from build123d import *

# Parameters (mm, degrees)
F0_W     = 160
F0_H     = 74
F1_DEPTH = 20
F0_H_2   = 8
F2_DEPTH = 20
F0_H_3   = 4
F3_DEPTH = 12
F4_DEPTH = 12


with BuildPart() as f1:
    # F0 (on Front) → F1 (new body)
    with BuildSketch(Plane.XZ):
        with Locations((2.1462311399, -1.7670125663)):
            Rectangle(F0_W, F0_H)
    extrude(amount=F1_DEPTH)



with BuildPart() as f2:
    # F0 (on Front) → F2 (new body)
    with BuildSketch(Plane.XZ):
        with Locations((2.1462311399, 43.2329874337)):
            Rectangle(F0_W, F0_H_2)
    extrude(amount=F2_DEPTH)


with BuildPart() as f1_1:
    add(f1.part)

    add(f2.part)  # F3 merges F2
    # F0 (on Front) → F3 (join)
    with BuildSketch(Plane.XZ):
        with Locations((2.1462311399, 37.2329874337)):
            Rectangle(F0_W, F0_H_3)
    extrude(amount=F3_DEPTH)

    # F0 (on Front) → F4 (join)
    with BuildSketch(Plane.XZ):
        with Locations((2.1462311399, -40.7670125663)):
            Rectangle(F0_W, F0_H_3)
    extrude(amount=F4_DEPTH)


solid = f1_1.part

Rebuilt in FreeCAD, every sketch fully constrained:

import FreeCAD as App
import Part
import Sketcher

V = App.Vector

doc = App.newDocument("Part")
body = doc.addObject("PartDesign::Body", "Body")

sketch1 = doc.addObject("Sketcher::SketchObject", "Sketch")
body.addObject(sketch1)
sketch1.AttachmentSupport = (doc.XZ_Plane, [""])
sketch1.MapMode = "FlatFace"
sketch1.addGeometry(Part.LineSegment(V(-78, 35, 0), V(-78, -39, 0)), False)
sketch1.addGeometry(Part.LineSegment(V(-78, -39, 0), V(82, -39, 0)), False)
sketch1.addGeometry(Part.LineSegment(V(82, -39, 0), V(82, 35, 0)), False)
sketch1.addGeometry(Part.LineSegment(V(82, 35, 0), V(-78, 35, 0)), False)
sketch1.addConstraint(Sketcher.Constraint("Coincident", 0, 2, 1, 1))
sketch1.addConstraint(Sketcher.Constraint("Coincident", 1, 2, 2, 1))
sketch1.addConstraint(Sketcher.Constraint("Coincident", 2, 2, 3, 1))
sketch1.addConstraint(Sketcher.Constraint("Coincident", 3, 2, 0, 1))
sketch1.addConstraint(Sketcher.Constraint("Vertical", 0))
sketch1.addConstraint(Sketcher.Constraint("Horizontal", 1))
sketch1.addConstraint(Sketcher.Constraint("Vertical", 2))
sketch1.addConstraint(Sketcher.Constraint("Horizontal", 3))
sketch1.addConstraint(Sketcher.Constraint("DistanceX", 1, 1, 1, 2, 160.0))
sketch1.addConstraint(Sketcher.Constraint("DistanceY", 0, 2, 0, 1, 74.0))
sketch1.addConstraint(Sketcher.Constraint("DistanceX", 0, 2, -1, 1, 77.853769))
sketch1.addConstraint(Sketcher.Constraint("DistanceY", 0, 2, -1, 1, 38.767013))
pad1 = doc.addObject("PartDesign::Pad", "Pad")
body.addObject(pad1)
pad1.Profile = sketch1
pad1.Length = 20
body2 = doc.addObject("PartDesign::Body", "Body001")

sketch2 = doc.addObject("Sketcher::SketchObject", "Sketch001")
body2.addObject(sketch2)
sketch2.AttachmentSupport = (doc.getObject("XZ_Plane001"), [""])
sketch2.MapMode = "FlatFace"
sketch2.addGeometry(Part.LineSegment(V(-78, 47, 0), V(-78, 39, 0)), False)
sketch2.addGeometry(Part.LineSegment(V(-78, 39, 0), V(82, 39, 0)), False)
sketch2.addGeometry(Part.LineSegment(V(82, 39, 0), V(82, 47, 0)), False)
sketch2.addGeometry(Part.LineSegment(V(82, 47, 0), V(-78, 47, 0)), False)
sketch2.addConstraint(Sketcher.Constraint("Coincident", 0, 2, 1, 1))
sketch2.addConstraint(Sketcher.Constraint("Coincident", 1, 2, 2, 1))
sketch2.addConstraint(Sketcher.Constraint("Coincident", 2, 2, 3, 1))
sketch2.addConstraint(Sketcher.Constraint("Coincident", 3, 2, 0, 1))
sketch2.addConstraint(Sketcher.Constraint("Vertical", 0))
sketch2.addConstraint(Sketcher.Constraint("Horizontal", 1))
sketch2.addConstraint(Sketcher.Constraint("Vertical", 2))
sketch2.addConstraint(Sketcher.Constraint("Horizontal", 3))
sketch2.addConstraint(Sketcher.Constraint("DistanceX", 1, 1, 1, 2, 160.0))
sketch2.addConstraint(Sketcher.Constraint("DistanceY", 0, 2, 0, 1, 8.0))
sketch2.addConstraint(Sketcher.Constraint("DistanceX", 0, 2, -1, 1, 77.853769))
sketch2.addConstraint(Sketcher.Constraint("DistanceY", -1, 1, 0, 2, 39.232987))
pad2 = doc.addObject("PartDesign::Pad", "Pad001")
body2.addObject(pad2)
pad2.Profile = sketch2
pad2.Length = 20
body.AllowCompound = True
doc.recompute()

boolean = doc.addObject("PartDesign::Boolean", "Boolean")
body.addObject(boolean)
boolean.Type = "Fuse"
boolean.addObjects([body2])

sketch3 = doc.addObject("Sketcher::SketchObject", "Sketch002")
body.addObject(sketch3)
sketch3.AttachmentSupport = (doc.XZ_Plane, [""])
sketch3.MapMode = "FlatFace"
sketch3.addGeometry(Part.LineSegment(V(-77.9, 39.2, 0), V(-77.9, 35.2, 0)), False)
sketch3.addGeometry(Part.LineSegment(V(-77.9, 35.2, 0), V(82.1, 35.2, 0)), False)
sketch3.addGeometry(Part.LineSegment(V(82.1, 35.2, 0), V(82.1, 39.2, 0)), False)
sketch3.addGeometry(Part.LineSegment(V(82.1, 39.2, 0), V(-77.9, 39.2, 0)), False)
sketch3.addConstraint(Sketcher.Constraint("Coincident", 0, 2, 1, 1))
sketch3.addConstraint(Sketcher.Constraint("Coincident", 1, 2, 2, 1))
sketch3.addConstraint(Sketcher.Constraint("Coincident", 2, 2, 3, 1))
sketch3.addConstraint(Sketcher.Constraint("Coincident", 3, 2, 0, 1))
sketch3.addConstraint(Sketcher.Constraint("Vertical", 0))
sketch3.addConstraint(Sketcher.Constraint("Horizontal", 1))
sketch3.addConstraint(Sketcher.Constraint("Vertical", 2))
sketch3.addConstraint(Sketcher.Constraint("Horizontal", 3))
sketch3.addConstraint(Sketcher.Constraint("DistanceX", 1, 1, 1, 2, 160.0))
sketch3.addConstraint(Sketcher.Constraint("DistanceY", 0, 2, 0, 1, 4.0))
sketch3.addConstraint(Sketcher.Constraint("DistanceX", 0, 2, -1, 1, 77.853769))
sketch3.addConstraint(Sketcher.Constraint("DistanceY", -1, 1, 0, 2, 35.232987))
pad3 = doc.addObject("PartDesign::Pad", "Pad002")
body.addObject(pad3)
pad3.Profile = sketch3
pad3.Length = 12

sketch4 = doc.addObject("Sketcher::SketchObject", "Sketch003")
body.addObject(sketch4)
sketch4.AttachmentSupport = (doc.XZ_Plane, [""])
sketch4.MapMode = "FlatFace"
sketch4.addGeometry(Part.LineSegment(V(-77.9, -38.8, 0), V(-77.9, -42.8, 0)), False)
sketch4.addGeometry(Part.LineSegment(V(-77.9, -42.8, 0), V(82.1, -42.8, 0)), False)
sketch4.addGeometry(Part.LineSegment(V(82.1, -42.8, 0), V(82.1, -38.8, 0)), False)
sketch4.addGeometry(Part.LineSegment(V(82.1, -38.8, 0), V(-77.9, -38.8, 0)), False)
sketch4.addConstraint(Sketcher.Constraint("Coincident", 0, 2, 1, 1))
sketch4.addConstraint(Sketcher.Constraint("Coincident", 1, 2, 2, 1))
sketch4.addConstraint(Sketcher.Constraint("Coincident", 2, 2, 3, 1))
sketch4.addConstraint(Sketcher.Constraint("Coincident", 3, 2, 0, 1))
sketch4.addConstraint(Sketcher.Constraint("Vertical", 0))
sketch4.addConstraint(Sketcher.Constraint("Horizontal", 1))
sketch4.addConstraint(Sketcher.Constraint("Vertical", 2))
sketch4.addConstraint(Sketcher.Constraint("Horizontal", 3))
sketch4.addConstraint(Sketcher.Constraint("DistanceX", 1, 1, 1, 2, 160.0))
sketch4.addConstraint(Sketcher.Constraint("DistanceY", 0, 2, 0, 1, 4.0))
sketch4.addConstraint(Sketcher.Constraint("DistanceX", 0, 2, -1, 1, 77.853769))
sketch4.addConstraint(Sketcher.Constraint("DistanceY", 0, 2, -1, 1, 42.767013))
pad4 = doc.addObject("PartDesign::Pad", "Pad003")
body.addObject(pad4)
pad4.Profile = sketch4
pad4.Length = 12

doc.recompute()
